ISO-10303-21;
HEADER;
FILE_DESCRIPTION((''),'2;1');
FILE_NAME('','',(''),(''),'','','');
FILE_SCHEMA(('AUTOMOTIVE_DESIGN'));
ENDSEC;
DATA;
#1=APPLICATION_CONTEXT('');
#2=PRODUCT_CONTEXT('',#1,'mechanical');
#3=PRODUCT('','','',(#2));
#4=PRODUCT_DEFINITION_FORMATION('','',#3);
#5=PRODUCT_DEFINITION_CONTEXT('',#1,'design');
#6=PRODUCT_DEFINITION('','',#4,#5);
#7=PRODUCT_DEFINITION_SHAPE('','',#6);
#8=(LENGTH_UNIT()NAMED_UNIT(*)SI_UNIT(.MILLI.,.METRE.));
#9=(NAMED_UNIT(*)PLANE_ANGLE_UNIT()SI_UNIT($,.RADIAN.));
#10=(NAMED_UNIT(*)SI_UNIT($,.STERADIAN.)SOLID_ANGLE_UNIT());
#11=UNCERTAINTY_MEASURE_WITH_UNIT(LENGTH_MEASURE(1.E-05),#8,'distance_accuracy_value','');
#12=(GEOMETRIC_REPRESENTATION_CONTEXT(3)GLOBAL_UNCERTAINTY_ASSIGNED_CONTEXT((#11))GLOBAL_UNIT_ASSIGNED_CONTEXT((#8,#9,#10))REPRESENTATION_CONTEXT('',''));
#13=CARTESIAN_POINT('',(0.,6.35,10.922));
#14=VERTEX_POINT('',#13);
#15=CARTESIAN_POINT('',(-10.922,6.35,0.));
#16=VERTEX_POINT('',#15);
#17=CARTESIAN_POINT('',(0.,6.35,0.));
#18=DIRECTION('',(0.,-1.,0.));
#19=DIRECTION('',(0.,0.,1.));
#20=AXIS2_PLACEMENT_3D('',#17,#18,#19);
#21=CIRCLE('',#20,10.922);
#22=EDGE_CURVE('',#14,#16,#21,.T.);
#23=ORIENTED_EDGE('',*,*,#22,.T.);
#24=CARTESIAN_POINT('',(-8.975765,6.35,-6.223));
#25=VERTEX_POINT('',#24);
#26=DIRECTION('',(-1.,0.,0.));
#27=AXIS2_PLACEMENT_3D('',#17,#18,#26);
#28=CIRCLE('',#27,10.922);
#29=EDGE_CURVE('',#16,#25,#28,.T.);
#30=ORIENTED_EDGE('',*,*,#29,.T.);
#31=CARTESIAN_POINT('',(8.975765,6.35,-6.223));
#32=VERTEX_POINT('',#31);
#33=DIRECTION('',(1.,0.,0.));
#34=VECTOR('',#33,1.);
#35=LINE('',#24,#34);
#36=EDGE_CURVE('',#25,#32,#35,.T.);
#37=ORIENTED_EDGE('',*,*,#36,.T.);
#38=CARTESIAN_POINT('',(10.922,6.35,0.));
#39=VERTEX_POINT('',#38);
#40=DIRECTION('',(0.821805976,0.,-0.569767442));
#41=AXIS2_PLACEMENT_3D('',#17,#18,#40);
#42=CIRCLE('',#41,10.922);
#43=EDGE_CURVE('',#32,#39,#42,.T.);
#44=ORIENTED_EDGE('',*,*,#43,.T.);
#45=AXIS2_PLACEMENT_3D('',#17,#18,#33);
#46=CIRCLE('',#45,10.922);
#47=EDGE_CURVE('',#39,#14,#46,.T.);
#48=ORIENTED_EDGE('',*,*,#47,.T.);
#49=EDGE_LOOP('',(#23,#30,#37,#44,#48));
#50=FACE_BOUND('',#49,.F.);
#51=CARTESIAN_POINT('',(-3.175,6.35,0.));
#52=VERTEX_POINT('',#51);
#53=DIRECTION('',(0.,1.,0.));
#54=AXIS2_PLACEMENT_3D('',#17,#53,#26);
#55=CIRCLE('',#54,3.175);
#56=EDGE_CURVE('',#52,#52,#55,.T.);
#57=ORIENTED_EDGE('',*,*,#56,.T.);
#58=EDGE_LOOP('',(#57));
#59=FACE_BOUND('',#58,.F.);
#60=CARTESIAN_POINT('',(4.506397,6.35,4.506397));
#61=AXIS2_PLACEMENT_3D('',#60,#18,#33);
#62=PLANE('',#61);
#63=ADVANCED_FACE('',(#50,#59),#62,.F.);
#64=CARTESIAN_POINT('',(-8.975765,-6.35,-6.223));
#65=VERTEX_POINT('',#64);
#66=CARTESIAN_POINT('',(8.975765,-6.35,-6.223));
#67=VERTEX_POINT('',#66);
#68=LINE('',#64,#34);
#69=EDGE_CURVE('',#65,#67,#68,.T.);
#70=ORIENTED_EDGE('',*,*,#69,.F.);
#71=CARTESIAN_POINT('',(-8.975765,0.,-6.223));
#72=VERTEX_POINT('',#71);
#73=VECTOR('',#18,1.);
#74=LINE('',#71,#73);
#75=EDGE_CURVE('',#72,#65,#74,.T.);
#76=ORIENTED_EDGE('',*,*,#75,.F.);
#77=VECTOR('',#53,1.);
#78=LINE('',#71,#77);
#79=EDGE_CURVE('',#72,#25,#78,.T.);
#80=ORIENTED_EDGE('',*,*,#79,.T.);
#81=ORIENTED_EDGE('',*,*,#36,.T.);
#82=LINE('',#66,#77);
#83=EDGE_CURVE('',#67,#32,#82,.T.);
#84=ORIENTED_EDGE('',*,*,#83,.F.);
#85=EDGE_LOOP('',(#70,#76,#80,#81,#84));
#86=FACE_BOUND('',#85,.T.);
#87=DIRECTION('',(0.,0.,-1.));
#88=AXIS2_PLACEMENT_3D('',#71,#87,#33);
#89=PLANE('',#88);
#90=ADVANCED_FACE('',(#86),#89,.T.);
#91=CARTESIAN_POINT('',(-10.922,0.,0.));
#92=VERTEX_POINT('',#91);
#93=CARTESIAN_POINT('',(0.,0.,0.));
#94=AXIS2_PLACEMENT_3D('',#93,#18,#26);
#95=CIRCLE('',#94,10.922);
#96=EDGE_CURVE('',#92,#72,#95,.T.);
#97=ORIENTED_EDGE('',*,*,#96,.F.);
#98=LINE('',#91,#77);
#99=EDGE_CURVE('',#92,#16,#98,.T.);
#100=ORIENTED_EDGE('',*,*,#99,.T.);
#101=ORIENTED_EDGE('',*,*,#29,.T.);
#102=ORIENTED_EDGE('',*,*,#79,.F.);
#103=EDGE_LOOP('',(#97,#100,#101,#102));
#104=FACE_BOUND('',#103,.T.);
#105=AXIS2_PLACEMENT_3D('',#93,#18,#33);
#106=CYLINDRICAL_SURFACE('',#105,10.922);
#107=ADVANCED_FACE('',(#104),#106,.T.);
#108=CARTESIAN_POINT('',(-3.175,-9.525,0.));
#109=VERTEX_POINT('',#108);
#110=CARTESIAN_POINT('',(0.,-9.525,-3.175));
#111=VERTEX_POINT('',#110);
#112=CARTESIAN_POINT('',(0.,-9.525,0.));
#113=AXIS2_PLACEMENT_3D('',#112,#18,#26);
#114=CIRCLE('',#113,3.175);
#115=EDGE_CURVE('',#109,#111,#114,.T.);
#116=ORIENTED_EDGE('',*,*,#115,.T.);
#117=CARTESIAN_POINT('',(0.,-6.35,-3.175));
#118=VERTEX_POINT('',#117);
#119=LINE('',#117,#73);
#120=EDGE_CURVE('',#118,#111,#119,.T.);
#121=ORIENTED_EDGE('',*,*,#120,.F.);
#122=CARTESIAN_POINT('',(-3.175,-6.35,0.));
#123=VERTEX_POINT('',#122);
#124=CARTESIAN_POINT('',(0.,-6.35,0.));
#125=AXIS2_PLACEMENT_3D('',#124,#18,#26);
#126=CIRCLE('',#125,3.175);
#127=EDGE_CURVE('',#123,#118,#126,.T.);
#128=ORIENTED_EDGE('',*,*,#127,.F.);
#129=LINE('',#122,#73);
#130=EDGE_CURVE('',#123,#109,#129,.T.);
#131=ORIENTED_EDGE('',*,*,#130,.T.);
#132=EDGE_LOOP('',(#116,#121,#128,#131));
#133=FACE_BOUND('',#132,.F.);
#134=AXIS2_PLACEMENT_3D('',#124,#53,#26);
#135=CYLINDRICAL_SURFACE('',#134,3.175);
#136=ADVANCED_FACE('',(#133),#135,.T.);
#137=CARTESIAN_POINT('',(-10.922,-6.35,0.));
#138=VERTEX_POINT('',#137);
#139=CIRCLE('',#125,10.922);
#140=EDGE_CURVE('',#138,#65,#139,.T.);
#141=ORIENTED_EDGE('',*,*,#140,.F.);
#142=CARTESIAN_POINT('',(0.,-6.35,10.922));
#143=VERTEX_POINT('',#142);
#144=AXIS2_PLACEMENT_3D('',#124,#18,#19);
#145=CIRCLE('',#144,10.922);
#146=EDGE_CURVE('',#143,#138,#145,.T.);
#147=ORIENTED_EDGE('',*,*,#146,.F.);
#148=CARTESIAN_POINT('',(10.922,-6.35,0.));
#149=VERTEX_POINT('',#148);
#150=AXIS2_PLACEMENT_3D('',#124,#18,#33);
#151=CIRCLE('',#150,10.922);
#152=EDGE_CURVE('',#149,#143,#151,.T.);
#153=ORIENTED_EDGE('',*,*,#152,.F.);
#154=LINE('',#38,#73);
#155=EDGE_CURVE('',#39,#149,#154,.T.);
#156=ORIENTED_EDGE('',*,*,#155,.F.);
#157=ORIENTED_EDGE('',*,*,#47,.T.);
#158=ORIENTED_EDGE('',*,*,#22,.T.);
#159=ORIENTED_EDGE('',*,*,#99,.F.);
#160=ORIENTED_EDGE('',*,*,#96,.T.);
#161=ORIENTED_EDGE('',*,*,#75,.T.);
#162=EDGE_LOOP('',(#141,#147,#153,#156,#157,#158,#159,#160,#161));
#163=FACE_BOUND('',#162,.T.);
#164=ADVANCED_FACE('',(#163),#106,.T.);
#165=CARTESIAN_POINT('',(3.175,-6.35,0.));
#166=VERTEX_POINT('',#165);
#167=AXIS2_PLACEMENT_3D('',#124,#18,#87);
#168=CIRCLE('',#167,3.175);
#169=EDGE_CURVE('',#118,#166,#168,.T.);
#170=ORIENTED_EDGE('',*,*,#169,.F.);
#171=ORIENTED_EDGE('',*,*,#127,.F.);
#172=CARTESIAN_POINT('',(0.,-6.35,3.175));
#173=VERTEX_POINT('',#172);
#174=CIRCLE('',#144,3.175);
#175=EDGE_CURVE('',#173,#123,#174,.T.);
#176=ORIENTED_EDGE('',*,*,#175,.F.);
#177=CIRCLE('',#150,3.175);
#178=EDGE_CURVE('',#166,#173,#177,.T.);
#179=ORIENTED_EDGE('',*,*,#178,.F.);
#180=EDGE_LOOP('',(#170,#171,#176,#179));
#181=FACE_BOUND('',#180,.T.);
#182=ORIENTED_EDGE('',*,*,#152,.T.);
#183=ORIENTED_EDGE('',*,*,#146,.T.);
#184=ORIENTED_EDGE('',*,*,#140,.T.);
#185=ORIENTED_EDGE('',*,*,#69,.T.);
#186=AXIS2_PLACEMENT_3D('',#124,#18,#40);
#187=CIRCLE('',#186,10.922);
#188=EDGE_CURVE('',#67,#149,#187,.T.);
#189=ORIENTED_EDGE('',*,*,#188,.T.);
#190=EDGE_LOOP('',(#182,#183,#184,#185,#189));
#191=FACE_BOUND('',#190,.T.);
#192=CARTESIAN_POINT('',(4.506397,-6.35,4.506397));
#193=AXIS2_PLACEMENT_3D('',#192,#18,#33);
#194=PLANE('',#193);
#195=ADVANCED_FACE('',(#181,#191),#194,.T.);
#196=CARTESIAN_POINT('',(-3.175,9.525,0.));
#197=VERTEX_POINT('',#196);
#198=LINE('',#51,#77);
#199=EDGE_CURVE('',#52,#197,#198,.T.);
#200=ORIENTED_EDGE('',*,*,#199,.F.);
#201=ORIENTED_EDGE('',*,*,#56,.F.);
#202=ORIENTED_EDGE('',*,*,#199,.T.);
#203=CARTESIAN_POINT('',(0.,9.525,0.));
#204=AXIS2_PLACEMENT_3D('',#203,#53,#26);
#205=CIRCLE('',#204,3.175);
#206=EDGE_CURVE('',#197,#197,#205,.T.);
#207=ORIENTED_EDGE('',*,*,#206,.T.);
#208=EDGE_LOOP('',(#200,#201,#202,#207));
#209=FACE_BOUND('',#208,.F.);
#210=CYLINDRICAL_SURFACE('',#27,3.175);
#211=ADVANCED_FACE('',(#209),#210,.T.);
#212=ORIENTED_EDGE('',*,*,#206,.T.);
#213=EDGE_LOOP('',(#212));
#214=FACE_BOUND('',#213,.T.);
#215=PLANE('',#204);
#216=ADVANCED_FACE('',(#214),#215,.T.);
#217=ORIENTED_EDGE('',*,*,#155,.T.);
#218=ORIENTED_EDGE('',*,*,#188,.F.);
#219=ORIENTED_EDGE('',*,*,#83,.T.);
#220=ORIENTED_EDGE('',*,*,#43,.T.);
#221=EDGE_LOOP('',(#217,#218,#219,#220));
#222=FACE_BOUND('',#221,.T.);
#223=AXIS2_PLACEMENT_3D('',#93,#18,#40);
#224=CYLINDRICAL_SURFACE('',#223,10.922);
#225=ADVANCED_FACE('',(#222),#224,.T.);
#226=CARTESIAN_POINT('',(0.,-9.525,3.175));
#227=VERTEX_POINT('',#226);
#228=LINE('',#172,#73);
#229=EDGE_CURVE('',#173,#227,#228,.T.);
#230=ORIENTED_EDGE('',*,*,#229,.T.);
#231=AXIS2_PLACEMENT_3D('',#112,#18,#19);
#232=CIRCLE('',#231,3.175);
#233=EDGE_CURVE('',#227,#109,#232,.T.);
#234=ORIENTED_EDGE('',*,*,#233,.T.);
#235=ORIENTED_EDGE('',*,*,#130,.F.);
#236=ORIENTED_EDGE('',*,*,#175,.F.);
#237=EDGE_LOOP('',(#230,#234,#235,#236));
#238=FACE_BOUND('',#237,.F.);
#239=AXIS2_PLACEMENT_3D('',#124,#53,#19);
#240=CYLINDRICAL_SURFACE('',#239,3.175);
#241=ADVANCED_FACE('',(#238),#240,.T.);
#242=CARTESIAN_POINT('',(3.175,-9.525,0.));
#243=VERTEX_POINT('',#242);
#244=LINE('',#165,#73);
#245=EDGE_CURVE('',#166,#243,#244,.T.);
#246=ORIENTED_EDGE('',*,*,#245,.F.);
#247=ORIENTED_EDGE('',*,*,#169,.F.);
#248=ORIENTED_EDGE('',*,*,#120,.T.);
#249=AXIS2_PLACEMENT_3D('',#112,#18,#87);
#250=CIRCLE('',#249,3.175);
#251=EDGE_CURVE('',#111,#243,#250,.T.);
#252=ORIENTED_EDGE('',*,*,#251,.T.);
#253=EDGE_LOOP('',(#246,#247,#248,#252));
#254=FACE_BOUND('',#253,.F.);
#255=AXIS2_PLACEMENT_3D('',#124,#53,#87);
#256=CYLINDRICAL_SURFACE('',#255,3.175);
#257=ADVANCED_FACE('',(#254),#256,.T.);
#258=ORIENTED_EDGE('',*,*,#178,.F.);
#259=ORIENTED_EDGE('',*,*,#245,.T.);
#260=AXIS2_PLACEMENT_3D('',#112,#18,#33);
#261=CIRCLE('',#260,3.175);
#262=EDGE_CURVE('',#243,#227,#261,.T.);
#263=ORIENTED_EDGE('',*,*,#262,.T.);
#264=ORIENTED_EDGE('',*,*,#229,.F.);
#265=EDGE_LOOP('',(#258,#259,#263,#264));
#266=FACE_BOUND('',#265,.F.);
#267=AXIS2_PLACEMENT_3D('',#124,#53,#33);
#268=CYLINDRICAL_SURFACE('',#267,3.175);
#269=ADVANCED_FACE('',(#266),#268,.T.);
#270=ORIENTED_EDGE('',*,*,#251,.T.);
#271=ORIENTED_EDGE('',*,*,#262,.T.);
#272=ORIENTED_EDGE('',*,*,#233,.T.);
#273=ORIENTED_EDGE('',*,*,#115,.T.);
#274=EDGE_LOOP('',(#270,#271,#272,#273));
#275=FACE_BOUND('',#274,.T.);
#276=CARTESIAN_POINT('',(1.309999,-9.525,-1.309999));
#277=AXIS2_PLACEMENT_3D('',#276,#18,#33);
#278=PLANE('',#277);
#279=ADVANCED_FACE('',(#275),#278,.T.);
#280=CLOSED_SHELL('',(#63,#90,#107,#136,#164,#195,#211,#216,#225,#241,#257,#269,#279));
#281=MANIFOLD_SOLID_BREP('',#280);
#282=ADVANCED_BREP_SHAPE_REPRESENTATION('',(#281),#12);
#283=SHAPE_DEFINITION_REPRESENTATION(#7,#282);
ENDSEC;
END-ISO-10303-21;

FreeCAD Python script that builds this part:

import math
import FreeCAD as App
import Part
import Sketcher
Q = App.Units.Quantity

doc = App.newDocument("Part")
body = doc.addObject("PartDesign::Body", "Body")

# Sketch on XZ plane
sketch1 = body.newObject("Sketcher::SketchObject", "Sketch")
sketch1.AttachmentSupport = (doc.getObject("XZ_Plane"), [""])
sketch1.MapMode = "FlatFace"
sketch1.addGeometry(Part.ArcOfCircle(Part.Circle(App.Vector(0, 0, 0), App.Vector(0, 0, 1), 11), math.radians(-35), math.radians(0)), False)
sketch1.addGeometry(Part.ArcOfCircle(Part.Circle(App.Vector(0, 0, 0), App.Vector(0, 0, 1), 11), math.radians(0), math.radians(90)), False)
sketch1.addGeometry(Part.ArcOfCircle(Part.Circle(App.Vector(0, 0, 0), App.Vector(0, 0, 1), 11), math.radians(90), math.radians(180)), False)
sketch1.addGeometry(Part.ArcOfCircle(Part.Circle(App.Vector(0, 0, 0), App.Vector(0, 0, 1), 11), math.radians(180), math.radians(215)), False)
sketch1.addGeometry(Part.LineSegment(App.Vector(-9, -6, 0), App.Vector(9, -6, 0)), False)
sketch1.addConstraint(Sketcher.Constraint("Tangent", 0, 2, 1, 1))
sketch1.addConstraint(Sketcher.Constraint("Tangent", 1, 2, 2, 1))
sketch1.addConstraint(Sketcher.Constraint("Tangent", 2, 2, 3, 1))
sketch1.addConstraint(Sketcher.Constraint("Coincident", 3, 2, 4, 1))
sketch1.addConstraint(Sketcher.Constraint("Coincident", 4, 2, 0, 1))
sketch1.addConstraint(Sketcher.Constraint("Horizontal", 4))
sketch1.addConstraint(Sketcher.Constraint("Coincident", 0, 3, -1, 1))
sketch1.addConstraint(Sketcher.Constraint("Coincident", 2, 3, -1, 1))
sketch1.addConstraint(Sketcher.Constraint("Equal", 2, 3))
sketch1.addConstraint(Sketcher.Constraint("PointOnObject", 0, 2, -1))
sketch1.addConstraint(Sketcher.Constraint("PointOnObject", 1, 2, -2))
sketch1.addConstraint(Sketcher.Constraint("PointOnObject", 2, 2, -1))
sketch1.addConstraint(Sketcher.Constraint("Radius", 0, Q("0.43 in")))
sketch1.addConstraint(Sketcher.Constraint("DistanceY", 3, 2, -1, 1, Q("0.245 in")))
pad1 = body.newObject("PartDesign::Pad", "Pad")
pad1.Profile = sketch1
pad1.Length = Q("0.5 in")
pad1.Midplane = True

# Sketch on XZ plane
sketch2 = body.newObject("Sketcher::SketchObject", "Sketch001")
sketch2.AttachmentSupport = (doc.getObject("XZ_Plane"), [""])
sketch2.MapMode = "FlatFace"
sketch2.AttachmentOffset = App.Placement(App.Vector(0, 0, 0.25 * 25.4), App.Rotation())
sketch2.addGeometry(Part.ArcOfCircle(Part.Circle(App.Vector(0, 0, 0), App.Vector(0, 0, 1), 3.2), math.radians(-90), math.radians(0)), False)
sketch2.addGeometry(Part.ArcOfCircle(Part.Circle(App.Vector(0, 0, 0), App.Vector(0, 0, 1), 3.2), math.radians(0), math.radians(90)), False)
sketch2.addGeometry(Part.ArcOfCircle(Part.Circle(App.Vector(0, 0, 0), App.Vector(0, 0, 1), 3.2), math.radians(90), math.radians(180)), False)
sketch2.addGeometry(Part.ArcOfCircle(Part.Circle(App.Vector(0, 0, 0), App.Vector(0, 0, 1), 3.2), math.radians(180), math.radians(270)), False)
sketch2.addConstraint(Sketcher.Constraint("Tangent", 0, 2, 1, 1))
sketch2.addConstraint(Sketcher.Constraint("Tangent", 1, 2, 2, 1))
sketch2.addConstraint(Sketcher.Constraint("Tangent", 2, 2, 3, 1))
sketch2.addConstraint(Sketcher.Constraint("Tangent", 3, 2, 0, 1))
sketch2.addConstraint(Sketcher.Constraint("Coincident", 0, 3, -1, 1))
sketch2.addConstraint(Sketcher.Constraint("Equal", 0, 1))
sketch2.addConstraint(Sketcher.Constraint("PointOnObject", 0, 2, -1))
sketch2.addConstraint(Sketcher.Constraint("PointOnObject", 1, 2, -2))
sketch2.addConstraint(Sketcher.Constraint("PointOnObject", 2, 2, -1))
sketch2.addConstraint(Sketcher.Constraint("PointOnObject", 3, 2, -2))
sketch2.addConstraint(Sketcher.Constraint("Radius", 0, Q("0.125 in")))
pad2 = body.newObject("PartDesign::Pad", "Pad001")
pad2.Profile = sketch2
pad2.Length = Q("0.125 in")

# Sketch on XZ plane
sketch3 = body.newObject("Sketcher::SketchObject", "Sketch002")
sketch3.AttachmentSupport = (doc.getObject("XZ_Plane"), [""])
sketch3.MapMode = "FlatFace"
sketch3.AttachmentOffset = App.Placement(App.Vector(0, 0, -0.25 * 25.4), App.Rotation())
sketch3.addGeometry(Part.Circle(App.Vector(0, 0, 0), App.Vector(0, 0, 1), 3.2), False)
sketch3.addConstraint(Sketcher.Constraint("Coincident", 0, 3, -1, 1))
sketch3.addConstraint(Sketcher.Constraint("Diameter", 0, Q("0.25 in")))
pad3 = body.newObject("PartDesign::Pad", "Pad002")
pad3.Profile = sketch3
pad3.Length = Q("0.125 in")
pad3.Reversed = True

doc.recompute()
